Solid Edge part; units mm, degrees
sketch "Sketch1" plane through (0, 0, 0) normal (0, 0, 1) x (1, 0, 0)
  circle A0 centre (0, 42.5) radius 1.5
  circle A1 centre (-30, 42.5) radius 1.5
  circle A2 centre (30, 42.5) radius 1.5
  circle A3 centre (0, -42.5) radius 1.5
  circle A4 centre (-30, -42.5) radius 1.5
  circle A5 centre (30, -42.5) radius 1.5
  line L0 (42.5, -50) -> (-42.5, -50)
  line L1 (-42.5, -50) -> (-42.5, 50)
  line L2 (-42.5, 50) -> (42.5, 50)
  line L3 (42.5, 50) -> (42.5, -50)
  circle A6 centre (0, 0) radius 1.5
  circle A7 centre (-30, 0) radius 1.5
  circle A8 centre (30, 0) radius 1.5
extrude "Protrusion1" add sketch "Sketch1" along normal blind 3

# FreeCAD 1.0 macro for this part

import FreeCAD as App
import Part
import Sketcher
Q = App.Units.Quantity

doc = App.newDocument("Part")
params = doc.addObject("Spreadsheet::Sheet", "Params")
for row, (alias, value) in enumerate([
    ("sketch1_diameter", "3 mm"),
    ("sketch1_width", "85 mm"),
    ("sketch1_height", "100 mm"),
    ("pad1_length", "3 mm"),
], start=1):
    params.set(f"A{row}", alias)
    params.set(f"B{row}", "=" + value)
    params.setAlias(f"B{row}", alias)

body = doc.addObject("PartDesign::Body", "Body")

# Sketch on XY plane
sketch1 = body.newObject("Sketcher::SketchObject", "Sketch")
sketch1.AttachmentSupport = (doc.getObject("XY_Plane"), [""])
sketch1.MapMode = "FlatFace"
sketch1.addGeometry([
    Part.LineSegment(App.Vector(-42.5, -50, 0), App.Vector(42.5, -50, 0)),  # 0
    Part.LineSegment(App.Vector(42.5, -50, 0), App.Vector(42.5, 50, 0)),  # 1
    Part.LineSegment(App.Vector(42.5, 50, 0), App.Vector(-42.5, 50, 0)),  # 2
    Part.LineSegment(App.Vector(-42.5, 50, 0), App.Vector(-42.5, -50, 0)),  # 3
    Part.Circle(App.Vector(-30, -42.5, 0), App.Vector(0, 0, 1), 1.5),  # 4
    Part.Circle(App.Vector(0, -42.5, 0), App.Vector(0, 0, 1), 1.5),  # 5
    Part.Circle(App.Vector(30, -42.5, 0), App.Vector(0, 0, 1), 1.5),  # 6
    Part.Circle(App.Vector(-30, 0, 0), App.Vector(0, 0, 1), 1.5),  # 7
    Part.Circle(App.Vector(-30, 42.5, 0), App.Vector(0, 0, 1), 1.5),  # 8
    Part.Circle(App.Vector(0, 0, 0), App.Vector(0, 0, 1), 1.5),  # 9
    Part.Circle(App.Vector(30, 0, 0), App.Vector(0, 0, 1), 1.5),  # 10
    Part.Circle(App.Vector(0, 42.5, 0), App.Vector(0, 0, 1), 1.5),  # 11
    Part.Circle(App.Vector(30, 42.5, 0), App.Vector(0, 0, 1), 1.5),  # 12
], False)
sketch1.addConstraint([
    Sketcher.Constraint("Coincident", 0, 2, 1, 1),
    Sketcher.Constraint("Coincident", 1, 2, 2, 1),
    Sketcher.Constraint("Coincident", 2, 2, 3, 1),
    Sketcher.Constraint("Coincident", 3, 2, 0, 1),
    Sketcher.Constraint("Horizontal", 0),
    Sketcher.Constraint("Vertical", 1),
    Sketcher.Constraint("Horizontal", 2),
    Sketcher.Constraint("Vertical", 3),
    Sketcher.Constraint("Coincident", 9, 3, -1, 1),
    Sketcher.Constraint("Equal", 4, 5),
    Sketcher.Constraint("Equal", 5, 6),
    Sketcher.Constraint("Equal", 6, 7),
    Sketcher.Constraint("Equal", 7, 8),
    Sketcher.Constraint("Equal", 8, 9),
    Sketcher.Constraint("Equal", 9, 10),
    Sketcher.Constraint("Equal", 10, 11),
    Sketcher.Constraint("Equal", 11, 12),
    Sketcher.Constraint("Symmetric", 6, 3, 8, 3, -1, 1),
    Sketcher.Constraint("Symmetric", 7, 3, 10, 3, -1, 1),
    Sketcher.Constraint("Symmetric", 5, 3, 11, 3, -1, 1),
    Sketcher.Constraint("Symmetric", 4, 3, 12, 3, -1, 1),
    Sketcher.Constraint("Symmetric", 0, 2, 2, 2, -1, 1),
    Sketcher.Constraint("Symmetric", 4, 3, 6, 3, -2),
    Sketcher.Constraint("PointOnObject", 5, 3, -2),
    Sketcher.Constraint("PointOnObject", 7, 3, -1),
    Sketcher.Constraint("Horizontal", 4, 3, 5, 3),
    Sketcher.Constraint("Vertical", 4, 3, 7, 3),
    Sketcher.Constraint("Diameter", 4, Q("3 mm")),
    Sketcher.Constraint("DistanceX", 0, 1, 0, 2, Q("85 mm")),
    Sketcher.Constraint("DistanceY", 1, 1, 1, 2, Q("100 mm")),
    Sketcher.Constraint("DistanceX", 4, 3, -1, 1, Q("30 mm")),
    Sketcher.Constraint("DistanceY", 4, 3, 8, 3, Q("85 mm")),
])
sketch1.setExpression("Constraints[27]", "Params.sketch1_diameter")
sketch1.setExpression("Constraints[28]", "Params.sketch1_width")
sketch1.setExpression("Constraints[29]", "Params.sketch1_height")
pad1 = body.newObject("PartDesign::Pad", "Pad")
pad1.Profile = sketch1
pad1.setExpression("Length", "Params.pad1_length")

doc.recompute()
